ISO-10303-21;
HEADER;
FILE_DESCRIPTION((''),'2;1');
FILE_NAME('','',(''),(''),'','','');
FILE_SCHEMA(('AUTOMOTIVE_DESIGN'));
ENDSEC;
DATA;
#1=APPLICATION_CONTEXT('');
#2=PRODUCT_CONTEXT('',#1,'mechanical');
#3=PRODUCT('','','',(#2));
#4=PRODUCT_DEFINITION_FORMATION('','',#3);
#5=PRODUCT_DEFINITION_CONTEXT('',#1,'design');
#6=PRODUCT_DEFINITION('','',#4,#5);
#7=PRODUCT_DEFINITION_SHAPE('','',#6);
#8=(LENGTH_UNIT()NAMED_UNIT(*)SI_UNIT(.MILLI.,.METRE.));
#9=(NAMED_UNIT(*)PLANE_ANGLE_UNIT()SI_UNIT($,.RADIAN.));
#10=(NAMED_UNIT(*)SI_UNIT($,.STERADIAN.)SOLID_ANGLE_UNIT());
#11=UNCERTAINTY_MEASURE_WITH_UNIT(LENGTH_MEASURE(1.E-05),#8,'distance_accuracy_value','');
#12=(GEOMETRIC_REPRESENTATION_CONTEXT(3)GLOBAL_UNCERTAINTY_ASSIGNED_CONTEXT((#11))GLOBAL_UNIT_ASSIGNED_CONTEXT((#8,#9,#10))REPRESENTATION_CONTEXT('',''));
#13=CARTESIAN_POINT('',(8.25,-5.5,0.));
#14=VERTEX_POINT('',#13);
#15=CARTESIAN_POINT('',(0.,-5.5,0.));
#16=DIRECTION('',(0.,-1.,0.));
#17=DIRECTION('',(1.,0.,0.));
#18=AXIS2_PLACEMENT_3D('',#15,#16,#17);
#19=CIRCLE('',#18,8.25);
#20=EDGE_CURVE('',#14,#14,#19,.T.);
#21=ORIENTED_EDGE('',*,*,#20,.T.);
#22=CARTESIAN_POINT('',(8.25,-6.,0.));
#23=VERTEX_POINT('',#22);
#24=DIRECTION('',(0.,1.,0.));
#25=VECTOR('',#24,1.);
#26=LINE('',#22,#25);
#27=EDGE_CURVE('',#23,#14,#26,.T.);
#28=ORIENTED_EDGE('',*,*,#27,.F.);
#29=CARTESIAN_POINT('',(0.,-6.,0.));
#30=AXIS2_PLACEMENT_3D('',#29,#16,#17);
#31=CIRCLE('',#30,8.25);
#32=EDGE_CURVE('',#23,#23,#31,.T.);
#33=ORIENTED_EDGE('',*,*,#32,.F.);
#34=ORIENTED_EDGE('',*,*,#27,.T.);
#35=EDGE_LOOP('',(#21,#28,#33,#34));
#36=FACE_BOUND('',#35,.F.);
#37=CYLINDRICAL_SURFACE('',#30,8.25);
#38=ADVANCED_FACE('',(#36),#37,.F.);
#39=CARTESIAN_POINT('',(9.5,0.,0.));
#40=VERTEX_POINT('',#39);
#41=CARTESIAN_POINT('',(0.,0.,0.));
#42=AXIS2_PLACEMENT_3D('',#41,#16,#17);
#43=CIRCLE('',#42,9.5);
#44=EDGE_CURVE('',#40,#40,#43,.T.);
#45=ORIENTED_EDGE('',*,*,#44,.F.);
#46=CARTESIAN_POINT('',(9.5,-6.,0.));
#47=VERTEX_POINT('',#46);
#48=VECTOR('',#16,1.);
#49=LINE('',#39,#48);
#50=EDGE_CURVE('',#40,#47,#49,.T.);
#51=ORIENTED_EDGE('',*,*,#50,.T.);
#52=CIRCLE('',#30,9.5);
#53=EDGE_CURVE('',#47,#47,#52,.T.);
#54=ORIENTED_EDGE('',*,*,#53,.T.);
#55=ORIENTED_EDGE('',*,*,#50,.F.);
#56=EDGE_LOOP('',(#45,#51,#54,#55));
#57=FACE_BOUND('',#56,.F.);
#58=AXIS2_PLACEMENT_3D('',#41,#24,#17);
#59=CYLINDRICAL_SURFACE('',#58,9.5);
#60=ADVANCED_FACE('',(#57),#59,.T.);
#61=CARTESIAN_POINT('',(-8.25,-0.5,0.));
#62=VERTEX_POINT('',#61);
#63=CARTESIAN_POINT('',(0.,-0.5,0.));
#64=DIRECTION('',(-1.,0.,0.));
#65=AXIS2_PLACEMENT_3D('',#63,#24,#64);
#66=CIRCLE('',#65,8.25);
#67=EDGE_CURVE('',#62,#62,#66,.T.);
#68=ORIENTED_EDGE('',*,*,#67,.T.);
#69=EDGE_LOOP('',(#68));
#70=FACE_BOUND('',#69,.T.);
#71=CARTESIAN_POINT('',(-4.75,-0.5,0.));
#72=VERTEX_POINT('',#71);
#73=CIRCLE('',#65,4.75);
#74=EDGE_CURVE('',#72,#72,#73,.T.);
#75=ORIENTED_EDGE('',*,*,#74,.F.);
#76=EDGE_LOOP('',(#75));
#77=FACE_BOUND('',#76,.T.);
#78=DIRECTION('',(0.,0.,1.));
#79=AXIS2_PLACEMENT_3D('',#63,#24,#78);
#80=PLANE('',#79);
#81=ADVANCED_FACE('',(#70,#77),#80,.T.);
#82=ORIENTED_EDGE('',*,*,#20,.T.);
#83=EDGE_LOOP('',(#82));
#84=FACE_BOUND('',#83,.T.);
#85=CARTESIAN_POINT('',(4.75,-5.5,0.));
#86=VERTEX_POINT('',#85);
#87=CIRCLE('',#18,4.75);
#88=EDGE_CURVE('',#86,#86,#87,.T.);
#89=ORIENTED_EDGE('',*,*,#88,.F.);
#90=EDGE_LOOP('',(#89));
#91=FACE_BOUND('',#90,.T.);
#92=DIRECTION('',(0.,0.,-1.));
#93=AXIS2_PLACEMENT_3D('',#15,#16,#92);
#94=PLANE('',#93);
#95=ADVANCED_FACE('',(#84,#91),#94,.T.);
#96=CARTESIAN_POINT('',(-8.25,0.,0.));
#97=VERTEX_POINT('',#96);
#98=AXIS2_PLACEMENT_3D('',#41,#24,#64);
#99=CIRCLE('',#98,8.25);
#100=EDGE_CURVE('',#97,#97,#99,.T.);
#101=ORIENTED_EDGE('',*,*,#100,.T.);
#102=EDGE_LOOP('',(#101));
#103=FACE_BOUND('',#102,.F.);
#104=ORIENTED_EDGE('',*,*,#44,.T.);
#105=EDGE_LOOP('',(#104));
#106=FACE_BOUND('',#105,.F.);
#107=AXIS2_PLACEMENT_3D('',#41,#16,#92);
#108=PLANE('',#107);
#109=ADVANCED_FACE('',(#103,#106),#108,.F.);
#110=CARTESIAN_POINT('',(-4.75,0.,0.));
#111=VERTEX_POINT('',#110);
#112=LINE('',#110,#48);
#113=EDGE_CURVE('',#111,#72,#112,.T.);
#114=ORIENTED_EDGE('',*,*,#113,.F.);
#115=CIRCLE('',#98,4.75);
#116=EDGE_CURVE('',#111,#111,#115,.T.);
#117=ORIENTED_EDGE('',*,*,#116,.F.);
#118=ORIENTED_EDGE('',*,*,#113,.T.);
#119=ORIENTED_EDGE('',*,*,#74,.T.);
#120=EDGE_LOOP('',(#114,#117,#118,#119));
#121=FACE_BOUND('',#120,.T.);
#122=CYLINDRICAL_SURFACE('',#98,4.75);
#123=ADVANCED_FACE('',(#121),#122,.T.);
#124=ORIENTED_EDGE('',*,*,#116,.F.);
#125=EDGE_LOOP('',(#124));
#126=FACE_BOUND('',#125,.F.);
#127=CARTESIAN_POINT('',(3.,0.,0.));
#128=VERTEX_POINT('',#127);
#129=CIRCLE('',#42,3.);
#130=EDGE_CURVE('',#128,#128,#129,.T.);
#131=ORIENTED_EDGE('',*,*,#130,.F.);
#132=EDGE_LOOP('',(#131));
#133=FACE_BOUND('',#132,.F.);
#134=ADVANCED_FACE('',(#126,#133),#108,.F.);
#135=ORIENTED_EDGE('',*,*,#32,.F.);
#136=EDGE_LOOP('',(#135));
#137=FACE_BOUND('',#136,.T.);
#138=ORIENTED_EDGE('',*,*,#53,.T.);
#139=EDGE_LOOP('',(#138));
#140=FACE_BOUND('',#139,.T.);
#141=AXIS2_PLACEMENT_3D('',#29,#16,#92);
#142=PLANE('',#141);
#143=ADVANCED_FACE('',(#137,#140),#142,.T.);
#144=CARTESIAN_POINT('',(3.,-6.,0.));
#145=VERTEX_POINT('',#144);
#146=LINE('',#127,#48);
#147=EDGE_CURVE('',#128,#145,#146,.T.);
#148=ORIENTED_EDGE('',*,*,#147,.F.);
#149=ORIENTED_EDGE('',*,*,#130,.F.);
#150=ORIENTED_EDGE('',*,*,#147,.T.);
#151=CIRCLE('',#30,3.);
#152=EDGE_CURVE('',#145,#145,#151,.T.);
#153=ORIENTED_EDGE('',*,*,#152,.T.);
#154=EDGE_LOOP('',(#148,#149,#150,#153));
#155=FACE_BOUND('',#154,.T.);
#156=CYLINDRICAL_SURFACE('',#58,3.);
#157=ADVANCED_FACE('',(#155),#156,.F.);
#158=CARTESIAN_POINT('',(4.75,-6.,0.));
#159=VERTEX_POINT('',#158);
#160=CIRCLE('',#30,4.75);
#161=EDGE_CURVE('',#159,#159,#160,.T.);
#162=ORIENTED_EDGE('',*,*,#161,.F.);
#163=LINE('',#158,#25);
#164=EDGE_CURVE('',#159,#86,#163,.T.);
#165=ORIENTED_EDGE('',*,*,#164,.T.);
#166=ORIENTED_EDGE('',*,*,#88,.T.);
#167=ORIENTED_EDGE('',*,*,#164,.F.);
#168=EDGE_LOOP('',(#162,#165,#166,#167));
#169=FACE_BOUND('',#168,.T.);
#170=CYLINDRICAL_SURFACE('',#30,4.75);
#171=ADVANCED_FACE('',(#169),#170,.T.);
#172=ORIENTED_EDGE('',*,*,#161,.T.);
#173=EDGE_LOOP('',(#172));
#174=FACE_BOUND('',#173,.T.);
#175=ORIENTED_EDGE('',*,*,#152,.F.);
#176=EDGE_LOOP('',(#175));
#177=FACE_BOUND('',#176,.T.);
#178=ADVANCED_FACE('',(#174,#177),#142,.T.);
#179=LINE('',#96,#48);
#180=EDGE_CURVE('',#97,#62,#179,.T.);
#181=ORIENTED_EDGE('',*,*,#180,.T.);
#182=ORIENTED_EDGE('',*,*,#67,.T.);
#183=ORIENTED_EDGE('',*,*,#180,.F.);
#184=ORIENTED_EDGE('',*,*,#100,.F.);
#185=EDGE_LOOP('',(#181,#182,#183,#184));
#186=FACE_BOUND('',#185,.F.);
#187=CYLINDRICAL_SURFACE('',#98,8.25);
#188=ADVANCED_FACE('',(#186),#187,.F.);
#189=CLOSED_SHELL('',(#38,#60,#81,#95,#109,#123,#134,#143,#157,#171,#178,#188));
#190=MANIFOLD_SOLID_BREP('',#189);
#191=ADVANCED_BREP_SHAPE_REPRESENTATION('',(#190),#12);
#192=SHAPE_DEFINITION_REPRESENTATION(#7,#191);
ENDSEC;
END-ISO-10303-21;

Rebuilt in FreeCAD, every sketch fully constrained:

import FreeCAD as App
import Part
import Sketcher
Q = App.Units.Quantity

doc = App.newDocument("Part")
body = doc.addObject("PartDesign::Body", "Body")

sketch1 = doc.addObject("Sketcher::SketchObject", "Sketch")
body.addObject(sketch1)
sketch1.AttachmentSupport = (doc.XZ_Plane, [""])
sketch1.MapMode = "FlatFace"
sketch1.addGeometry([
    Part.Circle(App.Vector(0, 0, 0), App.Vector(0, 0, 1), 9.5),
    Part.Circle(App.Vector(0, 0, 0), App.Vector(0, 0, 1), 3),
], False)
sketch1.addConstraint([
    Sketcher.Constraint("Coincident", 0, 3, -1, 1),
    Sketcher.Constraint("Coincident", 1, 3, -1, 1),
    Sketcher.Constraint("Diameter", 0, Q("19 mm")),
    Sketcher.Constraint("Diameter", 1, Q("6 mm")),
])
pad1 = doc.addObject("PartDesign::Pad", "Pad")
body.addObject(pad1)
pad1.Profile = sketch1
pad1.Length = 6

sketch2 = doc.addObject("Sketcher::SketchObject", "Sketch001")
body.addObject(sketch2)
sketch2.AttachmentSupport = (doc.XZ_Plane, [""])
sketch2.MapMode = "FlatFace"
sketch2.addGeometry([
    Part.Circle(App.Vector(0, 0, 0), App.Vector(0, 0, 1), 8.2),
    Part.Circle(App.Vector(0, 0, 0), App.Vector(0, 0, 1), 4.8),
], False)
sketch2.addConstraint([
    Sketcher.Constraint("Coincident", 0, 3, -1, 1),
    Sketcher.Constraint("Coincident", 1, 3, -1, 1),
    Sketcher.Constraint("Diameter", 0, Q("16.5 mm")),
    Sketcher.Constraint("Diameter", 1, Q("9.5 mm")),
])
pocket1 = doc.addObject("PartDesign::Pocket", "Pocket")
body.addObject(pocket1)
pocket1.Profile = sketch2
pocket1.Length = 0.5
pocket1.Reversed = True

sketch3 = doc.addObject("Sketcher::SketchObject", "Sketch002")
body.addObject(sketch3)
sketch3.AttachmentSupport = (doc.XZ_Plane, [""])
sketch3.MapMode = "FlatFace"
sketch3.AttachmentOffset = App.Placement(App.Vector(0, 0, 6), App.Rotation())
sketch3.addGeometry([
    Part.Circle(App.Vector(0, 0, 0), App.Vector(0, 0, 1), 8.2),
    Part.Circle(App.Vector(0, 0, 0), App.Vector(0, 0, 1), 4.8),
], False)
sketch3.addConstraint([
    Sketcher.Constraint("Coincident", 0, 3, -1, 1),
    Sketcher.Constraint("Coincident", 1, 3, -1, 1),
    Sketcher.Constraint("Diameter", 0, Q("16.5 mm")),
    Sketcher.Constraint("Diameter", 1, Q("9.5 mm")),
])
pocket2 = doc.addObject("PartDesign::Pocket", "Pocket001")
body.addObject(pocket2)
pocket2.Profile = sketch3
pocket2.Length = 0.5

doc.recompute()
